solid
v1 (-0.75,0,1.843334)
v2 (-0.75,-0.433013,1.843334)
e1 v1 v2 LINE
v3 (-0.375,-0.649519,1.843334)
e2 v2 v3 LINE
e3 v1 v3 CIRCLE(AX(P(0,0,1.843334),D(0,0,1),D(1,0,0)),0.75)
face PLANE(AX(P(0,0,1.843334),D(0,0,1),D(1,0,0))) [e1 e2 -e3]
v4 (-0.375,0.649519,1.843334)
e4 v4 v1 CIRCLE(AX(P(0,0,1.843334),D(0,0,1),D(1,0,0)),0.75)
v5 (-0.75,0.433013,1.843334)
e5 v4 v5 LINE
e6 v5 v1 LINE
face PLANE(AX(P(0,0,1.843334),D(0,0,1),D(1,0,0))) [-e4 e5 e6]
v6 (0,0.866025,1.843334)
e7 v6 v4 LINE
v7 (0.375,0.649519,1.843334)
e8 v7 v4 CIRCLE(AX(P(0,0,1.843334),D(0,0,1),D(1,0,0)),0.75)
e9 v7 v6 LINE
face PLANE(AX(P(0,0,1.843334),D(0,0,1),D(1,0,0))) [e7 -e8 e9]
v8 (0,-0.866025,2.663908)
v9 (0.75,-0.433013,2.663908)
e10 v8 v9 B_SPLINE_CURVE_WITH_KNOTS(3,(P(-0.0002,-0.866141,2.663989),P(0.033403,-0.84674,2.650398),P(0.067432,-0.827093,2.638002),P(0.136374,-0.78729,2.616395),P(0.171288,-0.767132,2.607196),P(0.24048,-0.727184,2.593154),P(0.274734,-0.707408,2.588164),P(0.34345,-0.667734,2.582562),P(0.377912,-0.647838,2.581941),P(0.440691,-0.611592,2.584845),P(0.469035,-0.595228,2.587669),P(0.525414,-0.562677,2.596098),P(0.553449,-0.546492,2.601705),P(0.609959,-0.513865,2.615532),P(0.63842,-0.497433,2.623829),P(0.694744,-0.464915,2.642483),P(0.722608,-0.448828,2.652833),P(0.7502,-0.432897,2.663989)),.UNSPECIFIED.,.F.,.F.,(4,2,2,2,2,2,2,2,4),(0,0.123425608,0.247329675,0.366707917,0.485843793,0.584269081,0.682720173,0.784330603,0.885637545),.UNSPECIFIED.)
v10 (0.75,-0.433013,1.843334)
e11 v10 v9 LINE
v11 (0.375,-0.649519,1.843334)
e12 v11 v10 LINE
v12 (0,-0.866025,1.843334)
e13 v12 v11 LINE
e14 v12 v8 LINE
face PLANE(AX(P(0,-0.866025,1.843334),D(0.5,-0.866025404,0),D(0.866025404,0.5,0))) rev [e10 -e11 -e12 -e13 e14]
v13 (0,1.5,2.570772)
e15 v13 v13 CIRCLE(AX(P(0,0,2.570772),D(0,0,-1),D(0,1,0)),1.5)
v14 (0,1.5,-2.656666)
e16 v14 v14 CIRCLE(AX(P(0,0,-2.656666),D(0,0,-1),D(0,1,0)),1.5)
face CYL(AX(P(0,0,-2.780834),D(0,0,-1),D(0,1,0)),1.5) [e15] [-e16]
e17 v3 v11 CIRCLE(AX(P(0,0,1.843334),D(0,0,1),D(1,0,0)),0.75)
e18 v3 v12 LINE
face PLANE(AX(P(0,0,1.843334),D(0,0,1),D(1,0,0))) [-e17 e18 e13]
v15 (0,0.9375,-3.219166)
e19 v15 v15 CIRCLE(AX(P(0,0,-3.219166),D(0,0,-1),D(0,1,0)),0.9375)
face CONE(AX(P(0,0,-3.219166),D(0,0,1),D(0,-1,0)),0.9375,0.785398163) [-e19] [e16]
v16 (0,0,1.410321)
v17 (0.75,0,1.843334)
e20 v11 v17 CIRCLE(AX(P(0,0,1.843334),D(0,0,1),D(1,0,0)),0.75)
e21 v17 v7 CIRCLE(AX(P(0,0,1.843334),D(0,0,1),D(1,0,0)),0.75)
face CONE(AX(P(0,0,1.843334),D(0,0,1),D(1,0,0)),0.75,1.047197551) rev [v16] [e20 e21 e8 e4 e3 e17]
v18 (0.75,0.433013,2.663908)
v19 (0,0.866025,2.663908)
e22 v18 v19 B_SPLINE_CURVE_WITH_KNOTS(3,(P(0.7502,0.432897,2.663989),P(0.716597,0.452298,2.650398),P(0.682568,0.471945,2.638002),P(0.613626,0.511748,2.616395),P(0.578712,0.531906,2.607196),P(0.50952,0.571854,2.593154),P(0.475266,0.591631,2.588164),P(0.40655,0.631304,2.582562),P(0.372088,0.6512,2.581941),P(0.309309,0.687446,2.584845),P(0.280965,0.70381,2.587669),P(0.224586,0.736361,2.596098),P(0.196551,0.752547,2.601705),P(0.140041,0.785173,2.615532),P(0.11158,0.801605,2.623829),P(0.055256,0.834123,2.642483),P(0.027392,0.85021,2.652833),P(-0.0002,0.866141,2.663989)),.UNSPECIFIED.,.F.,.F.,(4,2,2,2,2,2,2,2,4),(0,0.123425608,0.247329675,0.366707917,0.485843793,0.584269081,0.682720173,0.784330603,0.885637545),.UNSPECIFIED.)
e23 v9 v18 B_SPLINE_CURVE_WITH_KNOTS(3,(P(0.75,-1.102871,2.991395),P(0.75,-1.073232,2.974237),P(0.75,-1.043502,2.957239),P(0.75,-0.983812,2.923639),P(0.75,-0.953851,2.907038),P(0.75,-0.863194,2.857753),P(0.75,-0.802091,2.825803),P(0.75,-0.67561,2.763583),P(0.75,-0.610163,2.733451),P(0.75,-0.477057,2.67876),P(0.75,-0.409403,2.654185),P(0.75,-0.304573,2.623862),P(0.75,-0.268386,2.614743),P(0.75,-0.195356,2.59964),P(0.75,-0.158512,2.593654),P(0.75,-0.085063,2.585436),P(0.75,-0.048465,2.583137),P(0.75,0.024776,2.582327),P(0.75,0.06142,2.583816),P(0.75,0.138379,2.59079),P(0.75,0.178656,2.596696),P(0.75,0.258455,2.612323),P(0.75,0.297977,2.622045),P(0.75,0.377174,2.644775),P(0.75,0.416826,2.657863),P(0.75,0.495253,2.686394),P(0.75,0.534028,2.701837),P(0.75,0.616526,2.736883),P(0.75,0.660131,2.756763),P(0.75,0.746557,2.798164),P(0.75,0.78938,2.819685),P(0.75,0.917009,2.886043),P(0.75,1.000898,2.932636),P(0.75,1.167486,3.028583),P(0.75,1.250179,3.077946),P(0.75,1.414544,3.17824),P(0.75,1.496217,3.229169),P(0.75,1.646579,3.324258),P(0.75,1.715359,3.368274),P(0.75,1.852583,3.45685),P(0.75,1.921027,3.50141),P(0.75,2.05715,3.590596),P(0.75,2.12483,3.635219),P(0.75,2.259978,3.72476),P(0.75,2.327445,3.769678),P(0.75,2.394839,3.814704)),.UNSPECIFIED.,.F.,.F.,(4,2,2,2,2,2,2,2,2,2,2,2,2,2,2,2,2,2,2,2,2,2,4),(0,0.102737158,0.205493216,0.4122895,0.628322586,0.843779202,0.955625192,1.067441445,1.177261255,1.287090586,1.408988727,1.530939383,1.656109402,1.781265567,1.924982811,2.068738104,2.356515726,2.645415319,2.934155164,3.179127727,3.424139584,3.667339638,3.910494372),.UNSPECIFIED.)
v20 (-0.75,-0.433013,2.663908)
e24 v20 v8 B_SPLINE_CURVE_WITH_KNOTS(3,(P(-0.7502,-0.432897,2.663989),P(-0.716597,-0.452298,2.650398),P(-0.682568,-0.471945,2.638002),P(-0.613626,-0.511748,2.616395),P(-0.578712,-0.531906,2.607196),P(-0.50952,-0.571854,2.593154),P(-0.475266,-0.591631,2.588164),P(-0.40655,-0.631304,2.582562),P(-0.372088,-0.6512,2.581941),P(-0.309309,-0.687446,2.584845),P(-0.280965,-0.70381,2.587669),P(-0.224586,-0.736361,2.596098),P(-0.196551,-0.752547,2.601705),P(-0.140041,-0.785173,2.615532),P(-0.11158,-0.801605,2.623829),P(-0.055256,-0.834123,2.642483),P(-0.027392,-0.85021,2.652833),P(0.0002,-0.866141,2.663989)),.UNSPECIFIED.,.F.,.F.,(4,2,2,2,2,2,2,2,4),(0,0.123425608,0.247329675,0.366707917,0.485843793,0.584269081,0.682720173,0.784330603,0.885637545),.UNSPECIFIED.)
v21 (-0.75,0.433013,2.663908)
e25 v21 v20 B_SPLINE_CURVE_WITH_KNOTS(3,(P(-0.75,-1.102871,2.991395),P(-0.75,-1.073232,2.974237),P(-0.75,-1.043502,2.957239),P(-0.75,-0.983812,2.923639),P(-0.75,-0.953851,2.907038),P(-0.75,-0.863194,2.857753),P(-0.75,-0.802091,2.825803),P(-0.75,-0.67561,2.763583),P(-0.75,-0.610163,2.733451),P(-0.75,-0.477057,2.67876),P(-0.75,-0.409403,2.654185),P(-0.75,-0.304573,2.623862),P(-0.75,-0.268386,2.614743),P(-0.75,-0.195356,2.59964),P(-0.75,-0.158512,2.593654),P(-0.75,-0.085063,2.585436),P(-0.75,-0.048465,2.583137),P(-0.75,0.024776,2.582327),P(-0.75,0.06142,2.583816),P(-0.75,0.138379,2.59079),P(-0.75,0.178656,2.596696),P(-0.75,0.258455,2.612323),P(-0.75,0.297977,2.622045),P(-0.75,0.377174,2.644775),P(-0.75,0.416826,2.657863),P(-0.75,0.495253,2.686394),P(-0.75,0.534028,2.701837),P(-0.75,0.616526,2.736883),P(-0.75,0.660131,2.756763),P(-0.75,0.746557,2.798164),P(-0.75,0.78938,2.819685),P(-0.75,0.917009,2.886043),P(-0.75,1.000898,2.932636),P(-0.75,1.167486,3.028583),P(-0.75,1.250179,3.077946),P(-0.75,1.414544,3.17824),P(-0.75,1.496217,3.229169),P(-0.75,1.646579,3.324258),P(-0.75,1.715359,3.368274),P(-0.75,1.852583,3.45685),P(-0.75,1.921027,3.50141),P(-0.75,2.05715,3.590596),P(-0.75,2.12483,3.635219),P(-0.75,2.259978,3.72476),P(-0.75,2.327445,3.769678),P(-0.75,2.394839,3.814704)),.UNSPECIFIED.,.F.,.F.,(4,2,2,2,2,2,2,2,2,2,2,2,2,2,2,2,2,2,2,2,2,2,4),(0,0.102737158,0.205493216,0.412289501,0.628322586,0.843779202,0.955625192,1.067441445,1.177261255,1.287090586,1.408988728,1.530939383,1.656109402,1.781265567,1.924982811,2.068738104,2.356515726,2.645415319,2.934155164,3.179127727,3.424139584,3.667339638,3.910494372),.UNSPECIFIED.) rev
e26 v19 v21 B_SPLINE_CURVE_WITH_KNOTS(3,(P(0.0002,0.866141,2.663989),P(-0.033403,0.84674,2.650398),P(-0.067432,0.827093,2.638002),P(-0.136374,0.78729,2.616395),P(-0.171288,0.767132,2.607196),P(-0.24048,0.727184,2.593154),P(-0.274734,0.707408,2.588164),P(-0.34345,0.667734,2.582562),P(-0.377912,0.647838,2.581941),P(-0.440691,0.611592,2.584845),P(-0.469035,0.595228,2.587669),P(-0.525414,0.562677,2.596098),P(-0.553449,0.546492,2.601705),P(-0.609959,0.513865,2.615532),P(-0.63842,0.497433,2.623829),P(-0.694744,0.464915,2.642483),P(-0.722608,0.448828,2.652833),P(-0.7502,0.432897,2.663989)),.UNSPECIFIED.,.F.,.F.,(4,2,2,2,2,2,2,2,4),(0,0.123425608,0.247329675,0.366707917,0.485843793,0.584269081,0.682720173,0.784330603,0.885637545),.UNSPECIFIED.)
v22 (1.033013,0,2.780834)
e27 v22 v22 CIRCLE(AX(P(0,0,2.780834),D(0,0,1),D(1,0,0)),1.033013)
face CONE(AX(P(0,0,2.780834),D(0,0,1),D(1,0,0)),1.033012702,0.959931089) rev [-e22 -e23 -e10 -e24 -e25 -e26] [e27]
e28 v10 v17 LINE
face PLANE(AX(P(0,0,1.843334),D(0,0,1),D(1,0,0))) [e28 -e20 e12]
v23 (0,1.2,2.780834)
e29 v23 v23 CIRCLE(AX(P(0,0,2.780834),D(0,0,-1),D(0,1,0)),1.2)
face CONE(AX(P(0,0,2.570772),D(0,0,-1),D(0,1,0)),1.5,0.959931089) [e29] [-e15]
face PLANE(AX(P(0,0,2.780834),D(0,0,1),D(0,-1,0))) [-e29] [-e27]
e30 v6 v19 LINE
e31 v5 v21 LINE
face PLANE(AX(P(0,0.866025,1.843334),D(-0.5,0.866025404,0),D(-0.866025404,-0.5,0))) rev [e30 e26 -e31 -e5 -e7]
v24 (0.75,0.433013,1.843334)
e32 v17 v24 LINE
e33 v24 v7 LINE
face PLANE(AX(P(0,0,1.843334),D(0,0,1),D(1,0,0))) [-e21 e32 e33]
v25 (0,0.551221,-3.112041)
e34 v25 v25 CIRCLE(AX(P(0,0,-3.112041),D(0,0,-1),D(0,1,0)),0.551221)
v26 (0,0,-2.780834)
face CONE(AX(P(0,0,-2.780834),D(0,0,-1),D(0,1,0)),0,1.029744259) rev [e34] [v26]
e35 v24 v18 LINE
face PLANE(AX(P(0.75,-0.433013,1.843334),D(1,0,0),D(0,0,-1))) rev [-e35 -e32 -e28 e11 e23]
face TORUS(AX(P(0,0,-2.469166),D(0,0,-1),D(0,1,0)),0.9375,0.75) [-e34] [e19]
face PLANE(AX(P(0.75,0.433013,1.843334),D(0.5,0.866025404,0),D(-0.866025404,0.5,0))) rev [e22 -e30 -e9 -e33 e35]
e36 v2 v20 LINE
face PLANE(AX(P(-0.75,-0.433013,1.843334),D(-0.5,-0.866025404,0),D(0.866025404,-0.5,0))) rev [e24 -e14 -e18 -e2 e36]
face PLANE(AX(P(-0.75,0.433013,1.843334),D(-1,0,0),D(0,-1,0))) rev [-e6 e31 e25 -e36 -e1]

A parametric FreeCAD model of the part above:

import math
import FreeCAD as App
import Part
import Sketcher
from FreeCAD import Vector
Q = App.Units.Quantity


def add_polygon(sketch, points):
    """Adds a closed chain of lines whose ends are joined by coincident constraints."""
    first, n = sketch.GeometryCount, len(points)
    for a, b in zip(points, points[1:] + points[:1]):
        sketch.addGeometry(Part.LineSegment(App.Vector(*a, 0), App.Vector(*b, 0)), False)
    for i in range(n):
        sketch.addConstraint(Sketcher.Constraint("Coincident", first + i, 2, first + (i + 1) % n, 1))

doc = App.newDocument("Part")
params = doc.addObject("Spreadsheet::Sheet", "Params")
for row, (alias, value) in enumerate([
    ("sketch1_radius", "0.75 mm"),
    ("sketch1_width", "1.2 mm"),
    ("revolution_angle", "360 deg"),
    ("pocket1_length", "0.9375 mm"),
    ("groove_angle", "360 deg"),
    ("sketch4_width", "0.75 mm"),
    ("groove2_angle", "360 deg"),
], start=1):
    params.set(f"A{row}", alias)
    params.set(f"B{row}", "=" + value)
    params.setAlias(f"B{row}", alias)

body = doc.addObject("PartDesign::Body", "Body")

sketch1 = body.newObject("Sketcher::SketchObject", "Sketch")
sketch1.AttachmentSupport = (doc.getObject("YZ_Plane"), [""])
sketch1.MapMode = "FlatFace"
sketch1.addGeometry([
    Part.LineSegment(Vector(0, -2.78, 0), Vector(0.55, -3.11, 0)),
    Part.ArcOfCircle(Part.Circle(Vector(0.94, -2.47, 0), Vector(0, 0, 1), 0.75), math.radians(-121), math.radians(-90)),
    Part.LineSegment(Vector(0.94, -3.22, 0), Vector(1.5, -2.66, 0)),
    Part.LineSegment(Vector(1.5, -2.66, 0), Vector(1.5, 2.57, 0)),
    Part.LineSegment(Vector(1.5, 2.57, 0), Vector(1.2, 2.78, 0)),
    Part.LineSegment(Vector(1.2, 2.78, 0), Vector(0, 2.78, 0)),
    Part.LineSegment(Vector(0, 2.78, 0), Vector(0, -2.78, 0)),
], False)
sketch1.addConstraint([
    Sketcher.Constraint("Tangent", 0, 2, 1, 1),
    Sketcher.Constraint("Coincident", 1, 2, 2, 1),
    Sketcher.Constraint("Coincident", 2, 2, 3, 1),
    Sketcher.Constraint("Coincident", 3, 2, 4, 1),
    Sketcher.Constraint("Coincident", 4, 2, 5, 1),
    Sketcher.Constraint("Coincident", 5, 2, 6, 1),
    Sketcher.Constraint("Coincident", 6, 2, 0, 1),
    Sketcher.Constraint("Vertical", 3),
    Sketcher.Constraint("Horizontal", 5),
    Sketcher.Constraint("Vertical", 6),
    Sketcher.Constraint("Symmetric", 5, 2, 6, 2, -1, 1),
    Sketcher.Constraint("Angle", 0, Q("-31 deg")),
    Sketcher.Constraint("Angle", 2, Q("45 deg")),
    Sketcher.Constraint("Angle", 4, Q("145 deg")),
    Sketcher.Constraint("Radius", 1, 0.75),
    Sketcher.Constraint("DistanceX", 5, 2, 5, 1, 1.2),
    Sketcher.Constraint("DistanceY", 1, 2, 4, 2, 6.0),
    Sketcher.Constraint("DistanceX", -1, 1, 2, 2, 1.5),
    Sketcher.Constraint("DistanceY", 6, 2, 6, 1, 5.561668),
    Sketcher.Constraint("DistanceX", -1, 1, 1, 2, 0.9375),
])
sketch1.setExpression("Constraints[14]", "Params.sketch1_radius")
sketch1.setExpression("Constraints[15]", "Params.sketch1_width")
revolution = body.newObject("PartDesign::Revolution", "Revolution")
revolution.Profile = sketch1
revolution.ReferenceAxis = (sketch1, ["V_Axis"])
revolution.setExpression("Angle", "Params.revolution_angle")

sketch2 = body.newObject("Sketcher::SketchObject", "Sketch001")
sketch2.AttachmentSupport = (doc.getObject("XY_Plane"), [""])
sketch2.MapMode = "FlatFace"
sketch2.AttachmentOffset = App.Placement(Vector(0, 0, 2.780834), App.Rotation())
add_polygon(sketch2, [(0.8, 0.4), (0, 0.9), (-0.8, 0.4), (-0.8, -0.4), (0, -0.9), (0.8, -0.4)])
sketch2.addConstraint([
    Sketcher.Constraint("Vertical", 2),
    Sketcher.Constraint("Vertical", 5),
    Sketcher.Constraint("Symmetric", 0, 2, 3, 2, -1, 1),
    Sketcher.Constraint("Symmetric", 1, 2, 4, 2, -1, 1),
    Sketcher.Constraint("PointOnObject", 0, 2, -2),
    Sketcher.Constraint("Parallel", 0, 3),
    Sketcher.Constraint("Horizontal", 2, 2, 4, 2),
    Sketcher.Constraint("Angle", 0, Q("150 deg")),
    Sketcher.Constraint("DistanceX", 2, 2, 4, 2, 1.5),
    Sketcher.Constraint("DistanceY", 2, 2, 2, 1, 0.866025),
])
pocket1 = body.newObject("PartDesign::Pocket", "Pocket")
pocket1.Profile = sketch2
pocket1.setExpression("Length", "Params.pocket1_length")

sketch3 = body.newObject("Sketcher::SketchObject", "Sketch002")
sketch3.AttachmentSupport = (doc.getObject("YZ_Plane"), [""])
sketch3.MapMode = "FlatFace"
add_polygon(sketch3, [(0, 2.8), (-1, 2.8), (0, 2.1)])
sketch3.addConstraint([
    Sketcher.Constraint("Horizontal", 0),
    Sketcher.Constraint("Vertical", 2),
    Sketcher.Constraint("PointOnObject", 1, 2, -2),
    Sketcher.Constraint("Angle", 1, Q("-35 deg")),
    Sketcher.Constraint("DistanceX", 0, 2, 0, 1, 1.033013),
    Sketcher.Constraint("DistanceY", -1, 1, 1, 2, 2.057511),
])
groove = body.newObject("PartDesign::Groove", "Groove")
groove.Profile = sketch3
groove.ReferenceAxis = (sketch3, ["V_Axis"])
groove.setExpression("Angle", "Params.groove_angle")

sketch4 = body.newObject("Sketcher::SketchObject", "Sketch003")
sketch4.AttachmentSupport = (doc.getObject("YZ_Plane"), [""])
sketch4.MapMode = "FlatFace"
add_polygon(sketch4, [(0, 1.84), (-0.75, 1.84), (0, 1.41)])
sketch4.addConstraint([
    Sketcher.Constraint("Horizontal", 0),
    Sketcher.Constraint("Vertical", 2),
    Sketcher.Constraint("PointOnObject", 1, 2, -2),
    Sketcher.Constraint("Angle", 1, Q("-30 deg")),
    Sketcher.Constraint("DistanceX", 0, 2, 0, 1, 0.75),
    Sketcher.Constraint("DistanceY", -1, 1, 1, 2, 1.410321),
])
sketch4.setExpression("Constraints[7]", "Params.sketch4_width")
groove2 = body.newObject("PartDesign::Groove", "Groove001")
groove2.Profile = sketch4
groove2.ReferenceAxis = (sketch4, ["V_Axis"])
groove2.setExpression("Angle", "Params.groove2_angle")

doc.recompute()
